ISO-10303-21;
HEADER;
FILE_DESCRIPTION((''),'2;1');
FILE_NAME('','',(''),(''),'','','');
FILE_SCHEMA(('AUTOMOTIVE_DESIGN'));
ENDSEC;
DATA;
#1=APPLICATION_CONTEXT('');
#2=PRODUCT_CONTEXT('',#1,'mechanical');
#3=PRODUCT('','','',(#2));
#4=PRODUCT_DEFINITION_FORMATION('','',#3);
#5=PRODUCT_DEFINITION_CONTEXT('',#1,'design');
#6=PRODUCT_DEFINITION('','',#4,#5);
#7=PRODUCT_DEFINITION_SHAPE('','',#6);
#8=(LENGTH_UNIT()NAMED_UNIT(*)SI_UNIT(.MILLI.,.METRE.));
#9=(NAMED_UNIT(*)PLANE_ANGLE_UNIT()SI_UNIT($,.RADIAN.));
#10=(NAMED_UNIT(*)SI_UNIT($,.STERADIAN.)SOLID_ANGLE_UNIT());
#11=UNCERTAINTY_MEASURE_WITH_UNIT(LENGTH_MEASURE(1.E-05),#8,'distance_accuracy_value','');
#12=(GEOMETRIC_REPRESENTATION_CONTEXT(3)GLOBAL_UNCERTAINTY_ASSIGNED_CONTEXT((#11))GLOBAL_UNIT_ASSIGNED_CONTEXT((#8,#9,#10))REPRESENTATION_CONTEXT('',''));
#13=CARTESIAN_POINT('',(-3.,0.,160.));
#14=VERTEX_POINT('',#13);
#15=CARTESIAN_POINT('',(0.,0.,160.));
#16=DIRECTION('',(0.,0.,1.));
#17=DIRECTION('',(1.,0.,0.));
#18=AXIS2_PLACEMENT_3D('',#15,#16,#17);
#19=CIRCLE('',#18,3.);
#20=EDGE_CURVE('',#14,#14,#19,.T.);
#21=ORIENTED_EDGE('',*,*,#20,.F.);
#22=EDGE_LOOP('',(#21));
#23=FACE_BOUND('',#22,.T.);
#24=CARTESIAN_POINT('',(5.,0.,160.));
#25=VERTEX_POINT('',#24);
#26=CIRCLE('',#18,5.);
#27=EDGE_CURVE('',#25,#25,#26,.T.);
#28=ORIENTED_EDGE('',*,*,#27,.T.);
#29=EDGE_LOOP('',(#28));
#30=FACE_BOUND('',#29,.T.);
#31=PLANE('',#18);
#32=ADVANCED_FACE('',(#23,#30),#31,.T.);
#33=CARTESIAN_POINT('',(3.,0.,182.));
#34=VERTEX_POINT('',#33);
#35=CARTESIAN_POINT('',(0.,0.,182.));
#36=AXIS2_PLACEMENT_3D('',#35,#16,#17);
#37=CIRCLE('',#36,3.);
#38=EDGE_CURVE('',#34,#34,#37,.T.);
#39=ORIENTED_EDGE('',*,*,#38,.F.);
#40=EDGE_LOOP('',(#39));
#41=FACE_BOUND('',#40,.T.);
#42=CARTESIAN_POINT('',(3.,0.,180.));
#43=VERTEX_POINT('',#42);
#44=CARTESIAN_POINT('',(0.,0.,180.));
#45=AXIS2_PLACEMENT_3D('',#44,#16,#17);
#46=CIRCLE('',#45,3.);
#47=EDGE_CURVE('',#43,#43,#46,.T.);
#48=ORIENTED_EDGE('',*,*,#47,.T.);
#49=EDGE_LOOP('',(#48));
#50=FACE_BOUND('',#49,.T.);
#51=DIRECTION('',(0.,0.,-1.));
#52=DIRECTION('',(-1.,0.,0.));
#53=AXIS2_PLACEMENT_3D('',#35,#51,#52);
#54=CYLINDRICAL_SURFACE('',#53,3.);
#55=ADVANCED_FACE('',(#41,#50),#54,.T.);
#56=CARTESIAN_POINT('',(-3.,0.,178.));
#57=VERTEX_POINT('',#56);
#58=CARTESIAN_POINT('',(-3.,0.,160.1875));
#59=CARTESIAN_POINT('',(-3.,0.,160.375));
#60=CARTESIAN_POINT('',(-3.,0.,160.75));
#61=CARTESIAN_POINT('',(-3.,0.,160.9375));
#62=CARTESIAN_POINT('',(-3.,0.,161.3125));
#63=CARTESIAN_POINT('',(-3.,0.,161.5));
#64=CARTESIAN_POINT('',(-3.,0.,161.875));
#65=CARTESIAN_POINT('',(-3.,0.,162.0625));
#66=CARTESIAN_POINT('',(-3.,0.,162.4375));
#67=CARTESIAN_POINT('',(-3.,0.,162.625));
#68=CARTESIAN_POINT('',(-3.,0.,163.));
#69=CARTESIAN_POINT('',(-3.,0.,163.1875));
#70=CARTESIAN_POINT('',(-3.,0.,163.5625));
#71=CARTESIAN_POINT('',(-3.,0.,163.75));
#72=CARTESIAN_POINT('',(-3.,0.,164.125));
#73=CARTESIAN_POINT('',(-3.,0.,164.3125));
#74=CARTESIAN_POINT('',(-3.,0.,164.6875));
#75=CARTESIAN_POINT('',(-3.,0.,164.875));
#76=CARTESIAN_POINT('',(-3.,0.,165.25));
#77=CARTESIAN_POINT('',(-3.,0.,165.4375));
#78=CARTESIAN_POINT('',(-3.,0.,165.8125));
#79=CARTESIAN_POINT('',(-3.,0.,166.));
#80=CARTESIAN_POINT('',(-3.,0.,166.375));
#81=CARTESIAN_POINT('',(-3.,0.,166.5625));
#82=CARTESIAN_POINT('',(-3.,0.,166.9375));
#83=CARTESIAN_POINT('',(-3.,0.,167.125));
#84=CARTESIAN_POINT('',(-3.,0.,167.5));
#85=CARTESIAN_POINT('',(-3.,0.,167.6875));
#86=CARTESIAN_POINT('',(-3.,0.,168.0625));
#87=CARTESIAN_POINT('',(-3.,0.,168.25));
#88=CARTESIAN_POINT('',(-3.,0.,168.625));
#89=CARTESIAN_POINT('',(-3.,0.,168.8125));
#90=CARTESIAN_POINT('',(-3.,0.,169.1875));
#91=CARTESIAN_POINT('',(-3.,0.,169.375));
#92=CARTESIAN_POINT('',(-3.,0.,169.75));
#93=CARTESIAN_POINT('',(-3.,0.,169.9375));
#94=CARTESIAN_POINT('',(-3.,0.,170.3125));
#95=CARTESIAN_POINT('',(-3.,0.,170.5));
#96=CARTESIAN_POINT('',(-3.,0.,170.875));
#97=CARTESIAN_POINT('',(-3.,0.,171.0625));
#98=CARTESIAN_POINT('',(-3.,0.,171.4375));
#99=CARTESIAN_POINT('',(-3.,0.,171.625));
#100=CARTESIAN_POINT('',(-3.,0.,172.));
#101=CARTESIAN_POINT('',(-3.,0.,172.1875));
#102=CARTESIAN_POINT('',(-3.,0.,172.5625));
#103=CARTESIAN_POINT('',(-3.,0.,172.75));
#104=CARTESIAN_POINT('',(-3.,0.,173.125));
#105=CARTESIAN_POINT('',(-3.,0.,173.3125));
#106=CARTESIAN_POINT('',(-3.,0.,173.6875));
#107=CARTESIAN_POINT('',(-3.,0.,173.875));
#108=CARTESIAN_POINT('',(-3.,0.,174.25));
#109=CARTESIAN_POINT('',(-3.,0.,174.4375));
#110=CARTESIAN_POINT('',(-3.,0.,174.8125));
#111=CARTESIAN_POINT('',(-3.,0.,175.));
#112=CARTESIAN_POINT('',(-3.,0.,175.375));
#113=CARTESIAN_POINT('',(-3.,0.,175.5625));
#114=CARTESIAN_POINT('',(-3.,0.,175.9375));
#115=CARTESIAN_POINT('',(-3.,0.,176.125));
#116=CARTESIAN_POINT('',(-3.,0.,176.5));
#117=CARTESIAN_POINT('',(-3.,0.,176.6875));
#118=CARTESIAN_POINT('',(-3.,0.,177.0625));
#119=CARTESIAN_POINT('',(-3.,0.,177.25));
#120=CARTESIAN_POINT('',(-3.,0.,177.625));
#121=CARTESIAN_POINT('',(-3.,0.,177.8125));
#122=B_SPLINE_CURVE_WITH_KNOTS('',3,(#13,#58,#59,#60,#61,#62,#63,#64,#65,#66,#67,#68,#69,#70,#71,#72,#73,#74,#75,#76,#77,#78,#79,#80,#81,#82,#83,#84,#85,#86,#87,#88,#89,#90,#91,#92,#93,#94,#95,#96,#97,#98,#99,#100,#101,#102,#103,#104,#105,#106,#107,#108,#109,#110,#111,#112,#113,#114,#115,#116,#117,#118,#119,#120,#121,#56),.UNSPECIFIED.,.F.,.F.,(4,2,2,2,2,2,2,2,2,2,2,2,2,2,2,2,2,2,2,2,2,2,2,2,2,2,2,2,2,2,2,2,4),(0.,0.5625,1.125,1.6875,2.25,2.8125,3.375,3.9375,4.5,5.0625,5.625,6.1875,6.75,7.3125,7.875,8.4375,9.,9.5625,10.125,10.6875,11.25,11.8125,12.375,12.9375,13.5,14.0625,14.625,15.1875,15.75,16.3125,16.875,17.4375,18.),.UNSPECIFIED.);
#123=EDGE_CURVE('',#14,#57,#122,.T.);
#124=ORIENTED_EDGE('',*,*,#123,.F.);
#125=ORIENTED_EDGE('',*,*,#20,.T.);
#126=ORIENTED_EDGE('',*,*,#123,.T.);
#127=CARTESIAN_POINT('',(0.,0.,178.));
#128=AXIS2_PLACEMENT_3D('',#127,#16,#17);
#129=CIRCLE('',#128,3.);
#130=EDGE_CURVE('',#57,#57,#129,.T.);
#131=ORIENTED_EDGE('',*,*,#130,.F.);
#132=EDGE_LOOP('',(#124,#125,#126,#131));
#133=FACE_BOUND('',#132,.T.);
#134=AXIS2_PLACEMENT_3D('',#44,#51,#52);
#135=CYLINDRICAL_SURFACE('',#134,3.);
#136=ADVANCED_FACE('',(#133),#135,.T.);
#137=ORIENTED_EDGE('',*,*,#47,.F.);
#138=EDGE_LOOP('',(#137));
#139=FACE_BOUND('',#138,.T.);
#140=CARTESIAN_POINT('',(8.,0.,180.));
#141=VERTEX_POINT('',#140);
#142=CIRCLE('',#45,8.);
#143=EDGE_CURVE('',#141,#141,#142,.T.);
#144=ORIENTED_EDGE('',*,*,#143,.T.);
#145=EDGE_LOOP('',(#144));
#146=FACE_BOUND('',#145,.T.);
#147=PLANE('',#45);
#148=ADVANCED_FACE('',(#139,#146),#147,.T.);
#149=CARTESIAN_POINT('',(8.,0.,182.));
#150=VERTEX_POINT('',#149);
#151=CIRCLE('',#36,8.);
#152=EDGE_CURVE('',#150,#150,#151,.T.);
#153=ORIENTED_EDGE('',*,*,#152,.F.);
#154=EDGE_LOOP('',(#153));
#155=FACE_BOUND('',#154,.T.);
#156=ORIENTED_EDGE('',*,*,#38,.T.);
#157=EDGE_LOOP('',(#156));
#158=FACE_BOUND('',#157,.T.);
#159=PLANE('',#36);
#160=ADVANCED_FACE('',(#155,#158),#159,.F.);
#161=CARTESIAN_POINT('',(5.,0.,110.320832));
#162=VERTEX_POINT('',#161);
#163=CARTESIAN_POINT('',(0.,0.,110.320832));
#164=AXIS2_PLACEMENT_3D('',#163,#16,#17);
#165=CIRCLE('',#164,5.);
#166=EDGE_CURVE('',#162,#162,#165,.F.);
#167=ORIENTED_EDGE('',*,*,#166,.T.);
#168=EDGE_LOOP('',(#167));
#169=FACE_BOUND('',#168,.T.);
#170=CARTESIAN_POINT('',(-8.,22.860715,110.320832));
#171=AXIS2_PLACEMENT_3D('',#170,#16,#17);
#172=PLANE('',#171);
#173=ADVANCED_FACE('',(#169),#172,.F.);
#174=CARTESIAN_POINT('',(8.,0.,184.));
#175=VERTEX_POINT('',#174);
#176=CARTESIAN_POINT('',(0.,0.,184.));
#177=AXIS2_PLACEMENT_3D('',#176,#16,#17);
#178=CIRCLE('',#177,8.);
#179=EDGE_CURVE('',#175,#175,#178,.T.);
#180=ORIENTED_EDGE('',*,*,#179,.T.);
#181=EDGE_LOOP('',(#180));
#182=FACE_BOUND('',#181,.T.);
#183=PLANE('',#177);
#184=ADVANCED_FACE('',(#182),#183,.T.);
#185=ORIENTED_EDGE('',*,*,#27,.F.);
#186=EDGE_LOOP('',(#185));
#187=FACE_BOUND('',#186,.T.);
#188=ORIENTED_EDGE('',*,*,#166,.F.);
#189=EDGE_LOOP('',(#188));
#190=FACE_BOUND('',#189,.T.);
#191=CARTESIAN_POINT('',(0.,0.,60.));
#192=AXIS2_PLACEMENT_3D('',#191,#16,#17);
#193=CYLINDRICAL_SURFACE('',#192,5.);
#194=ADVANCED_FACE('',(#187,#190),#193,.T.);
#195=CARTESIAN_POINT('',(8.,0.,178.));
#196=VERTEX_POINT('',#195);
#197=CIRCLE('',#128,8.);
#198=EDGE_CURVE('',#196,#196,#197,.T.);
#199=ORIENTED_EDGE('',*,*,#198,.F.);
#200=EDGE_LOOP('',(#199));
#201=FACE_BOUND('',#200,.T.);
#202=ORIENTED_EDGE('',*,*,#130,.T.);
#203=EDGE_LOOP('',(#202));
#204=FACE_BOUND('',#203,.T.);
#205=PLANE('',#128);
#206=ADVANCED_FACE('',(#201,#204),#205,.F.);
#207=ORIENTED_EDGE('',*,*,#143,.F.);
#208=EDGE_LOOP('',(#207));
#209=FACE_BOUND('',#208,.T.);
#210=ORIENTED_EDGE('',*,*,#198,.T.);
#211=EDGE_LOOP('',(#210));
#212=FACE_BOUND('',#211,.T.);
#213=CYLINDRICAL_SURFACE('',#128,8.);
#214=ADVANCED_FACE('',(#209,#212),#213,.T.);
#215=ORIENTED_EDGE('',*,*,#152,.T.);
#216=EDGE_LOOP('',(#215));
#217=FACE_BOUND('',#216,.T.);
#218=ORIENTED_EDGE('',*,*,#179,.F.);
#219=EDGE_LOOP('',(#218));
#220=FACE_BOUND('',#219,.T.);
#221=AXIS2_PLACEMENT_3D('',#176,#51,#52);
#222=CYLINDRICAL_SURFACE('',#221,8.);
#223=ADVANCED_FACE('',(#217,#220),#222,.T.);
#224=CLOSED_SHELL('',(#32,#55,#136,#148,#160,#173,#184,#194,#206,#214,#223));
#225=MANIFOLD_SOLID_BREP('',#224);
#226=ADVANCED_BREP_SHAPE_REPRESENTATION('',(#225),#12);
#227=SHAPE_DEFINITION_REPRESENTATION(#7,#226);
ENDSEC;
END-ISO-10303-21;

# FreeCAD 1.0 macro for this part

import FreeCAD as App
import Part
import Sketcher


def add_polygon(sketch, points):
    """Adds a closed chain of lines whose ends are joined by coincident constraints."""
    first, n = sketch.GeometryCount, len(points)
    for a, b in zip(points, points[1:] + points[:1]):
        sketch.addGeometry(Part.LineSegment(App.Vector(*a, 0), App.Vector(*b, 0)), False)
    for i in range(n):
        sketch.addConstraint(Sketcher.Constraint("Coincident", first + i, 2, first + (i + 1) % n, 1))

doc = App.newDocument("Part")
params = doc.addObject("Spreadsheet::Sheet", "Params")
for row, (alias, value) in enumerate([
    ("sketch1_diameter", "6 mm"),
    ("pad1_length", "180 mm"),
    ("sketch2_diameter", "16 mm"),
    ("pad2_length", "2 mm"),
    ("sketch3_diameter", "16 mm"),
    ("pad3_length", "2 mm"),
    ("sketch4_diameter", "6 mm"),
    ("pad4_length", "2 mm"),
    ("sketch5_diameter", "6 mm"),
    ("pad5_length", "2 mm"),
    ("sketch6_diameter", "16 mm"),
    ("pad6_length", "2 mm"),
    ("sketch7_diameter", "16 mm"),
    ("pad7_length", "2 mm"),
    ("sketch8_diameter", "10 mm"),
    ("pad8_length", "60 mm"),
    ("sketch10_diameter", "10 mm"),
    ("pad9_length", "20 mm"),
    ("sketch11_diameter", "10 mm"),
    ("pad10_length", "40 mm"),
], start=1):
    params.set(f"A{row}", alias)
    params.set(f"B{row}", "=" + value)
    params.setAlias(f"B{row}", alias)

body = doc.addObject("PartDesign::Body", "Body")

sketch1 = body.newObject("Sketcher::SketchObject", "Sketch")
sketch1.AttachmentSupport = (doc.getObject("XY_Plane"), [""])
sketch1.MapMode = "FlatFace"
sketch1.addGeometry(Part.Circle(App.Vector(0, 0, 0), App.Vector(0, 0, 1), 3), False)
sketch1.addConstraint([
    Sketcher.Constraint("Coincident", 0, 3, -1, 1),
    Sketcher.Constraint("Diameter", 0, 6.0),
])
sketch1.setExpression("Constraints[1]", "Params.sketch1_diameter")
pad1 = body.newObject("PartDesign::Pad", "Pad")
pad1.Profile = sketch1
pad1.setExpression("Length", "Params.pad1_length")

sketch2 = body.newObject("Sketcher::SketchObject", "Sketch001")
sketch2.AttachmentSupport = (doc.getObject("XY_Plane"), [""])
sketch2.MapMode = "FlatFace"
sketch2.AttachmentOffset = App.Placement(App.Vector(0, 0, 180), App.Rotation())
sketch2.addGeometry(Part.Circle(App.Vector(0, 0, 0), App.Vector(0, 0, 1), 8), False)
sketch2.addConstraint([
    Sketcher.Constraint("Coincident", 0, 3, -1, 1),
    Sketcher.Constraint("Diameter", 0, 16.0),
])
sketch2.setExpression("Constraints[1]", "Params.sketch2_diameter")
pad2 = body.newObject("PartDesign::Pad", "Pad001")
pad2.Profile = sketch2
pad2.setExpression("Length", "Params.pad2_length")
pad2.Reversed = True

sketch3 = body.newObject("Sketcher::SketchObject", "Sketch002")
sketch3.AttachmentSupport = (doc.getObject("XY_Plane"), [""])
sketch3.MapMode = "FlatFace"
sketch3.AttachmentOffset = App.Placement(App.Vector(0, 0, 2), App.Rotation())
sketch3.addGeometry(Part.Circle(App.Vector(0, 0, 0), App.Vector(0, 0, 1), 8), False)
sketch3.addConstraint([
    Sketcher.Constraint("Coincident", 0, 3, -1, 1),
    Sketcher.Constraint("Diameter", 0, 16.0),
])
sketch3.setExpression("Constraints[1]", "Params.sketch3_diameter")
pad3 = body.newObject("PartDesign::Pad", "Pad002")
pad3.Profile = sketch3
pad3.setExpression("Length", "Params.pad3_length")
pad3.Reversed = True

sketch4 = body.newObject("Sketcher::SketchObject", "Sketch003")
sketch4.AttachmentSupport = (doc.getObject("XY_Plane"), [""])
sketch4.MapMode = "FlatFace"
sketch4.AttachmentOffset = App.Placement(App.Vector(0, 0, -2), App.Rotation())
sketch4.addGeometry(Part.Circle(App.Vector(0, 0, 0), App.Vector(0, 0, 1), 3), False)
sketch4.addConstraint([
    Sketcher.Constraint("Coincident", 0, 3, -1, 1),
    Sketcher.Constraint("Diameter", 0, 6.0),
])
sketch4.setExpression("Constraints[1]", "Params.sketch4_diameter")
pad4 = body.newObject("PartDesign::Pad", "Pad003")
pad4.Profile = sketch4
pad4.setExpression("Length", "Params.pad4_length")

sketch5 = body.newObject("Sketcher::SketchObject", "Sketch004")
sketch5.AttachmentSupport = (doc.getObject("XY_Plane"), [""])
sketch5.MapMode = "FlatFace"
sketch5.AttachmentOffset = App.Placement(App.Vector(0, 0, 180), App.Rotation())
sketch5.addGeometry(Part.Circle(App.Vector(0, 0, 0), App.Vector(0, 0, 1), 3), False)
sketch5.addConstraint([
    Sketcher.Constraint("Coincident", 0, 3, -1, 1),
    Sketcher.Constraint("Diameter", 0, 6.0),
])
sketch5.setExpression("Constraints[1]", "Params.sketch5_diameter")
pad5 = body.newObject("PartDesign::Pad", "Pad004")
pad5.Profile = sketch5
pad5.setExpression("Length", "Params.pad5_length")

sketch6 = body.newObject("Sketcher::SketchObject", "Sketch005")
sketch6.AttachmentSupport = (doc.getObject("XY_Plane"), [""])
sketch6.MapMode = "FlatFace"
sketch6.AttachmentOffset = App.Placement(App.Vector(0, 0, 184), App.Rotation())
sketch6.addGeometry(Part.Circle(App.Vector(0, 0, 0), App.Vector(0, 0, 1), 8), False)
sketch6.addConstraint([
    Sketcher.Constraint("Coincident", 0, 3, -1, 1),
    Sketcher.Constraint("Diameter", 0, 16.0),
])
sketch6.setExpression("Constraints[1]", "Params.sketch6_diameter")
pad6 = body.newObject("PartDesign::Pad", "Pad005")
pad6.Profile = sketch6
pad6.setExpression("Length", "Params.pad6_length")
pad6.Reversed = True

sketch7 = body.newObject("Sketcher::SketchObject", "Sketch006")
sketch7.AttachmentSupport = (doc.getObject("XY_Plane"), [""])
sketch7.MapMode = "FlatFace"
sketch7.AttachmentOffset = App.Placement(App.Vector(0, 0, -2), App.Rotation())
sketch7.addGeometry(Part.Circle(App.Vector(0, 0, 0), App.Vector(0, 0, 1), 8), False)
sketch7.addConstraint([
    Sketcher.Constraint("Coincident", 0, 3, -1, 1),
    Sketcher.Constraint("Diameter", 0, 16.0),
])
sketch7.setExpression("Constraints[1]", "Params.sketch7_diameter")
pad7 = body.newObject("PartDesign::Pad", "Pad006")
pad7.Profile = sketch7
pad7.setExpression("Length", "Params.pad7_length")
pad7.Reversed = True

sketch8 = body.newObject("Sketcher::SketchObject", "Sketch007")
sketch8.AttachmentSupport = (doc.getObject("XY_Plane"), [""])
sketch8.MapMode = "FlatFace"
sketch8.AttachmentOffset = App.Placement(App.Vector(0, 0, 120), App.Rotation())
sketch8.addGeometry(Part.Circle(App.Vector(0, 0, 0), App.Vector(0, 0, 1), 5), False)
sketch8.addConstraint([
    Sketcher.Constraint("Coincident", 0, 3, -1, 1),
    Sketcher.Constraint("Diameter", 0, 10.0),
])
sketch8.setExpression("Constraints[1]", "Params.sketch8_diameter")
pad8 = body.newObject("PartDesign::Pad", "Pad007")
pad8.Profile = sketch8
pad8.setExpression("Length", "Params.pad8_length")
pad8.Reversed = True

sketch9 = body.newObject("Sketcher::SketchObject", "Sketch008")
sketch9.AttachmentSupport = (doc.getObject("YZ_Plane"), [""])
sketch9.MapMode = "FlatFace"
add_polygon(sketch9, [(23, 110), (-22, 110), (-22, -19), (23, -19)])
sketch9.addConstraint([
    Sketcher.Constraint("Horizontal", 0),
    Sketcher.Constraint("Vertical", 1),
    Sketcher.Constraint("Horizontal", 2),
    Sketcher.Constraint("Vertical", 3),
    Sketcher.Constraint("DistanceY", 1, 2, -1, 1, 19.128801),
    Sketcher.Constraint("DistanceX", 0, 2, 0, 1, 45.197403),
    Sketcher.Constraint("DistanceY", 1, 2, 1, 1, 129.449633),
    Sketcher.Constraint("DistanceX", 0, 2, -1, 1, 22.336687),
])
pocket1 = body.newObject("PartDesign::Pocket", "Pocket")
pocket1.Profile = sketch9
pocket1.Type = "ThroughAll"
pocket1.Midplane = True

sketch10 = body.newObject("Sketcher::SketchObject", "Sketch009")
sketch10.AttachmentSupport = (doc.getObject("XY_Plane"), [""])
sketch10.MapMode = "FlatFace"
sketch10.AttachmentOffset = App.Placement(App.Vector(0, 0, 140), App.Rotation())
sketch10.addGeometry(Part.Circle(App.Vector(0, 0, 0), App.Vector(0, 0, 1), 5), False)
sketch10.addConstraint([
    Sketcher.Constraint("Coincident", 0, 3, -1, 1),
    Sketcher.Constraint("Diameter", 0, 10.0),
])
sketch10.setExpression("Constraints[1]", "Params.sketch10_diameter")
pad9 = body.newObject("PartDesign::Pad", "Pad008")
pad9.Profile = sketch10
pad9.setExpression("Length", "Params.pad9_length")
pad9.Reversed = True

sketch11 = body.newObject("Sketcher::SketchObject", "Sketch010")
sketch11.AttachmentSupport = (doc.getObject("XY_Plane"), [""])
sketch11.MapMode = "FlatFace"
sketch11.AttachmentOffset = App.Placement(App.Vector(0, 0, 160), App.Rotation())
sketch11.addGeometry(Part.Circle(App.Vector(0, 0, 0), App.Vector(0, 0, 1), 5), False)
sketch11.addConstraint([
    Sketcher.Constraint("Coincident", 0, 3, -1, 1),
    Sketcher.Constraint("Diameter", 0, 10.0),
])
sketch11.setExpression("Constraints[1]", "Params.sketch11_diameter")
pad10 = body.newObject("PartDesign::Pad", "Pad009")
pad10.Profile = sketch11
pad10.setExpression("Length", "Params.pad10_length")
pad10.Reversed = True

doc.recompute()
